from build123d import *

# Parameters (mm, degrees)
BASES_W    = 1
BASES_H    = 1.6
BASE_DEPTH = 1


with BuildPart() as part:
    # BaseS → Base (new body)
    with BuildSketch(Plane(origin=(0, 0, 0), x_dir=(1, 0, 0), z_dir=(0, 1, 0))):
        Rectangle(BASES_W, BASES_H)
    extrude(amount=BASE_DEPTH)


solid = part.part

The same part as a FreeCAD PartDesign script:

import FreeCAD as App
import Part
import Sketcher
from FreeCAD import Vector

doc = App.newDocument("Part")
body = doc.addObject("PartDesign::Body", "Body")

# Sketch on XZ plane
sketch1 = doc.addObject("Sketcher::SketchObject", "Sketch")
body.addObject(sketch1)
sketch1.AttachmentSupport = (doc.XZ_Plane, [""])
sketch1.MapMode = "FlatFace"
sketch1.addGeometry([
    Part.LineSegment(Vector(-0.5, -0.8, 0), Vector(-0.5, 0.8, 0)),
    Part.LineSegment(Vector(-0.5, 0.8, 0), Vector(0.5, 0.8, 0)),
    Part.LineSegment(Vector(0.5, 0.8, 0), Vector(0.5, -0.8, 0)),
    Part.LineSegment(Vector(0.5, -0.8, 0), Vector(-0.5, -0.8, 0)),
], False)
sketch1.addConstraint([
    Sketcher.Constraint("Coincident", 0, 2, 1, 1),
    Sketcher.Constraint("Coincident", 1, 2, 2, 1),
    Sketcher.Constraint("Coincident", 2, 2, 3, 1),
    Sketcher.Constraint("Coincident", 3, 2, 0, 1),
    Sketcher.Constraint("Vertical", 0),
    Sketcher.Constraint("Horizontal", 1),
    Sketcher.Constraint("Vertical", 2),
    Sketcher.Constraint("Horizontal", 3),
    Sketcher.Constraint("Symmetric", 0, 2, 2, 2, -1, 1),
    Sketcher.Constraint("DistanceX", 1, 1, 1, 2, 1.0),
    Sketcher.Constraint("DistanceY", 0, 1, 0, 2, 1.6),
])
pad1 = doc.addObject("PartDesign::Pad", "Pad")
body.addObject(pad1)
pad1.Profile = sketch1
pad1.Length = 1
pad1.Reversed = True

doc.recompute()
